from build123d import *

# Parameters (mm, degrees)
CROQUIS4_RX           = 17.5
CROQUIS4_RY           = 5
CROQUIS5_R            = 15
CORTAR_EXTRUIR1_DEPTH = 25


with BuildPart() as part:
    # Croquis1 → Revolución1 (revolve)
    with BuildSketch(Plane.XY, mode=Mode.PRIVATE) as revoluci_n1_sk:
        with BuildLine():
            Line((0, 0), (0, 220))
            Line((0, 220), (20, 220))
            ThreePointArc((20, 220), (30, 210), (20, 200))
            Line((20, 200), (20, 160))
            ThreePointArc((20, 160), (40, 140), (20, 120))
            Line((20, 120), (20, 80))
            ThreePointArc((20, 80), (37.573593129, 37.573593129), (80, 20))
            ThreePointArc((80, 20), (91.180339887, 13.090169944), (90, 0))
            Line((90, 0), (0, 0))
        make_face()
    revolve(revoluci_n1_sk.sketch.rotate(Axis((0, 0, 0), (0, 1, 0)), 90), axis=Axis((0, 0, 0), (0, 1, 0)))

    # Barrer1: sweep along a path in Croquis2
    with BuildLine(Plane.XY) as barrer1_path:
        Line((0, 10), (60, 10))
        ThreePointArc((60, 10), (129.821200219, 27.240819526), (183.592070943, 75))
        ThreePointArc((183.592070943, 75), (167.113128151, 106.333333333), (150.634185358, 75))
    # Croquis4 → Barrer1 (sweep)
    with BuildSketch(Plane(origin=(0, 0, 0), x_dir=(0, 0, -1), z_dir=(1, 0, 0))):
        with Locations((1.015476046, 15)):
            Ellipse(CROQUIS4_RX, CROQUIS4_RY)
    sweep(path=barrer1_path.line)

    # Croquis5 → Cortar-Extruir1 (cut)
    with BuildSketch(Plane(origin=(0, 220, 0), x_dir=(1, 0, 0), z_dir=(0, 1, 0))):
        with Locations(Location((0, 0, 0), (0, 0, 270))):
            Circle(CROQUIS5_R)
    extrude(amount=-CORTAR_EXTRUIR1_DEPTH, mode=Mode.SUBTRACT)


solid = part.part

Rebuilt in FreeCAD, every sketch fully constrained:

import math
import FreeCAD as App
import Part
import Sketcher
Q = App.Units.Quantity

doc = App.newDocument("Part")
body = doc.addObject("PartDesign::Body", "Body")

sketch1 = body.newObject("Sketcher::SketchObject", "Sketch")
sketch1.AttachmentSupport = (doc.getObject("XY_Plane"), [""])
sketch1.MapMode = "FlatFace"
sketch1.addGeometry(Part.LineSegment(App.Vector(0, 220, 0), App.Vector(0, 0, 0)), False)
sketch1.addGeometry(Part.LineSegment(App.Vector(0, 0, 0), App.Vector(90, 0, 0)), False)
sketch1.addGeometry(Part.ArcOfCircle(Part.Circle(App.Vector(80, 7.5, 0), App.Vector(0, 0, 1), 12.5), math.radians(-36.869898), math.radians(90)), False)
sketch1.addGeometry(Part.ArcOfCircle(Part.Circle(App.Vector(80, 80, 0), App.Vector(0, 0, 1), 60), math.radians(-180), math.radians(-90)), False)
sketch1.addGeometry(Part.LineSegment(App.Vector(20, 80, 0), App.Vector(20, 120, 0)), False)
sketch1.addGeometry(Part.ArcOfCircle(Part.Circle(App.Vector(20, 140, 0), App.Vector(0, 0, 1), 20), math.radians(-90), math.radians(90)), False)
sketch1.addGeometry(Part.LineSegment(App.Vector(20, 160, 0), App.Vector(20, 200, 0)), False)
sketch1.addGeometry(Part.ArcOfCircle(Part.Circle(App.Vector(20, 210, 0), App.Vector(0, 0, 1), 10), math.radians(-90), math.radians(90)), False)
sketch1.addGeometry(Part.LineSegment(App.Vector(20, 220, 0), App.Vector(0, 220, 0)), False)
sketch1.addConstraint(Sketcher.Constraint("Coincident", 0, 2, 1, 1))
sketch1.addConstraint(Sketcher.Constraint("Coincident", 1, 2, 2, 1))
sketch1.addConstraint(Sketcher.Constraint("Tangent", 2, 2, 3, 2))
sketch1.addConstraint(Sketcher.Constraint("Tangent", 3, 1, 4, 1))
sketch1.addConstraint(Sketcher.Constraint("Coincident", 4, 2, 5, 1))
sketch1.addConstraint(Sketcher.Constraint("Coincident", 5, 2, 6, 1))
sketch1.addConstraint(Sketcher.Constraint("Coincident", 6, 2, 7, 1))
sketch1.addConstraint(Sketcher.Constraint("Tangent", 7, 2, 8, 1))
sketch1.addConstraint(Sketcher.Constraint("Coincident", 8, 2, 0, 1))
sketch1.addConstraint(Sketcher.Constraint("Vertical", 0))
sketch1.addConstraint(Sketcher.Constraint("Horizontal", 1))
sketch1.addConstraint(Sketcher.Constraint("Vertical", 4))
sketch1.addConstraint(Sketcher.Constraint("Vertical", 6))
sketch1.addConstraint(Sketcher.Constraint("Horizontal", 8))
sketch1.addConstraint(Sketcher.Constraint("Coincident", 0, 2, -1, 1))
sketch1.addConstraint(Sketcher.Constraint("Vertical", 2, 3, 3, 3))
sketch1.addConstraint(Sketcher.Constraint("Vertical", 5, 3, 7, 3))
sketch1.addConstraint(Sketcher.Constraint("Vertical", 7, 3, 3, 1))
sketch1.addConstraint(Sketcher.Constraint("Vertical", 4, 2, 5, 2))
sketch1.addConstraint(Sketcher.Constraint("Equal", 4, 6))
sketch1.addConstraint(Sketcher.Constraint("Radius", 3, Q("60 mm")))
sketch1.addConstraint(Sketcher.Constraint("Radius", 5, Q("20 mm")))
sketch1.addConstraint(Sketcher.Constraint("Radius", 7, Q("10 mm")))
sketch1.addConstraint(Sketcher.Constraint("Radius", 2, Q("12.5 mm")))
sketch1.addConstraint(Sketcher.Constraint("DistanceX", 1, 1, 1, 2, Q("90 mm")))
sketch1.addConstraint(Sketcher.Constraint("DistanceX", 8, 2, 8, 1, Q("20 mm")))
sketch1.addConstraint(Sketcher.Constraint("DistanceY", 0, 2, 0, 1, Q("220 mm")))
revolution = body.newObject("PartDesign::Revolution", "Revolution")
revolution.Profile = sketch1
revolution.ReferenceAxis = (sketch1, ["V_Axis"])
revolution.Angle = 360

sketch2 = body.newObject("Sketcher::SketchObject", "Sketch001")
sketch2.AttachmentSupport = (doc.getObject("YZ_Plane"), [""])
sketch2.MapMode = "FlatFace"
sketch2.addGeometry(Part.Ellipse(App.Vector(15, -18.515476, 0), App.Vector(20, -1.015476, 0), App.Vector(15, -1.015476, 0)), False)
sketch2.addConstraint(Sketcher.Constraint("Block", 0))

sketch3 = body.newObject("Sketcher::SketchObject", "Sketch002")
sketch3.AttachmentSupport = (doc.getObject("XY_Plane"), [""])
sketch3.MapMode = "FlatFace"
sketch3.addGeometry(Part.LineSegment(App.Vector(0, 10, 0), App.Vector(60, 10, 0)), False)
sketch3.addGeometry(Part.ArcOfCircle(Part.Circle(App.Vector(60, 160, 0), App.Vector(0, 0, 1), 150), math.radians(-90), math.radians(-34.518108)), False)
sketch3.addGeometry(Part.ArcOfCircle(Part.Circle(App.Vector(167.113128, 86.333333, 0), App.Vector(0, 0, 1), 20), math.radians(-34.518108), math.radians(214.518108)), False)
sketch3.addConstraint(Sketcher.Constraint("Tangent", 0, 2, 1, 1))
sketch3.addConstraint(Sketcher.Constraint("Tangent", 1, 2, 2, 1))
sketch3.addConstraint(Sketcher.Constraint("Horizontal", 0))
sketch3.addConstraint(Sketcher.Constraint("PointOnObject", 0, 1, -2))
sketch3.addConstraint(Sketcher.Constraint("Horizontal", 1, 2, 2, 2))
sketch3.addConstraint(Sketcher.Constraint("Radius", 1, Q("150 mm")))
sketch3.addConstraint(Sketcher.Constraint("Radius", 2, Q("20 mm")))
sketch3.addConstraint(Sketcher.Constraint("DistanceX", 0, 1, 0, 2, Q("60 mm")))
sketch3.addConstraint(Sketcher.Constraint("DistanceY", -1, 1, 1, 3, Q("160 mm")))
sketch3.addConstraint(Sketcher.Constraint("DistanceY", -1, 1, 1, 2, Q("75 mm")))
doc.recompute()

additivepipe = body.newObject("PartDesign::AdditivePipe", "AdditivePipe")
additivepipe.Profile = sketch2
additivepipe.Spine = (sketch3, ["Edge1", "Edge2", "Edge3"])

sketch4 = body.newObject("Sketcher::SketchObject", "Sketch003")
sketch4.AttachmentSupport = (doc.getObject("XZ_Plane"), [""])
sketch4.MapMode = "FlatFace"
sketch4.AttachmentOffset = App.Placement(App.Vector(0, 0, -220), App.Rotation())
sketch4.addGeometry(Part.Circle(App.Vector(0, 0, 0), App.Vector(0, 0, 1), 15), False)
sketch4.addConstraint(Sketcher.Constraint("Coincident", 0, 3, -1, 1))
sketch4.addConstraint(Sketcher.Constraint("Diameter", 0, Q("30 mm")))
pocket1 = body.newObject("PartDesign::Pocket", "Pocket")
pocket1.Profile = sketch4
pocket1.Length = 25
pocket1.Reversed = True

doc.recompute()
